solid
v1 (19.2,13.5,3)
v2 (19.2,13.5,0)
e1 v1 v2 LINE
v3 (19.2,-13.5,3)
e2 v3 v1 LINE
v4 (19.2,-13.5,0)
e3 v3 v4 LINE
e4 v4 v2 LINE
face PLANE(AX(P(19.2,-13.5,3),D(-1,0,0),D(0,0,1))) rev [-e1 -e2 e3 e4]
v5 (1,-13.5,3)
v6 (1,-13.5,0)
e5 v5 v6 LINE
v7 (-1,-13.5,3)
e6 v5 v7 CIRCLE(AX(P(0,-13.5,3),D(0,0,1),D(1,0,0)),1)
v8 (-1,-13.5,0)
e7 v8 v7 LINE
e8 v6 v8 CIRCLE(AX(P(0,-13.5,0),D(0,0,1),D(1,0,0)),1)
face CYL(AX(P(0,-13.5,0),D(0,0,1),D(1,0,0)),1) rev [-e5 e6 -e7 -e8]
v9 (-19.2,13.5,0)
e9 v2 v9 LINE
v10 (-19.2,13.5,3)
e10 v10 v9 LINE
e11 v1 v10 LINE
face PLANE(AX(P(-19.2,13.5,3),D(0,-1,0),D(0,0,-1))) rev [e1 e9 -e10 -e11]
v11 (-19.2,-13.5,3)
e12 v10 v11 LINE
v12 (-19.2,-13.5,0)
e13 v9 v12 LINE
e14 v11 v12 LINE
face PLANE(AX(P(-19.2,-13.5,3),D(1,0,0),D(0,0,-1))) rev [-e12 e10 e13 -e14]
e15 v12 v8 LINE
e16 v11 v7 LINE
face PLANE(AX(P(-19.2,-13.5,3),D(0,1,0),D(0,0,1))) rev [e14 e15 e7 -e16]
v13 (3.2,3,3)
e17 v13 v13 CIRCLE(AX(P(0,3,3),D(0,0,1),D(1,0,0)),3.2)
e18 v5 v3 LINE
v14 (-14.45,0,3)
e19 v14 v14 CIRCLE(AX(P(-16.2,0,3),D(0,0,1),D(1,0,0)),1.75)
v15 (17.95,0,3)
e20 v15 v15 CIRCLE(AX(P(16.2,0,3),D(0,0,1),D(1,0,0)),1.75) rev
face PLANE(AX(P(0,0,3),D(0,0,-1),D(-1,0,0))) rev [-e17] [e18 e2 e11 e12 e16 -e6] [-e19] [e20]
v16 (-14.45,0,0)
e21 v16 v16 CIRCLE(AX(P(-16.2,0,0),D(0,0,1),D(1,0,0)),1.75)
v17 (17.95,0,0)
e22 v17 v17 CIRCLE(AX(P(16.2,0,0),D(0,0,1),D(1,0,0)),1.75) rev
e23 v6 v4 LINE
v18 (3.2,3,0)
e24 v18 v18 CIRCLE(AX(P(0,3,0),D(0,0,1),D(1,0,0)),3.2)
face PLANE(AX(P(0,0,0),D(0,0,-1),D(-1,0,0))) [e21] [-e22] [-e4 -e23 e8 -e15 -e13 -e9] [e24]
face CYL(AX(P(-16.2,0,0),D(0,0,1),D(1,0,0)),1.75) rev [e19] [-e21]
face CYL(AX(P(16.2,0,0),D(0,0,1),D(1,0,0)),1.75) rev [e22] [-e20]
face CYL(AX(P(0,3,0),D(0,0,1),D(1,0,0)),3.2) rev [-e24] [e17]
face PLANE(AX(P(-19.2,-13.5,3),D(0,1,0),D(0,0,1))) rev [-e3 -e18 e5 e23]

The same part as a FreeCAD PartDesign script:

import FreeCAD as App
import Part
import Sketcher

V = App.Vector
Q = App.Units.Quantity

doc = App.newDocument("Part")
params = doc.addObject("Spreadsheet::Sheet", "Params")
for row, (alias, value) in enumerate([
    ("sketch1_height", "27 mm"),
    ("sketch1_width", "38.4 mm"),
    ("pad1_length", "3 mm"),
    ("sketch2_diameter", "3.5 mm"),
    ("sketch3_diameter", "6.4 mm"),
    ("sketch4_diameter", "2 mm"),
], start=1):
    params.set(f"A{row}", alias)
    params.set(f"B{row}", "=" + value)
    params.setAlias(f"B{row}", alias)

body = doc.addObject("PartDesign::Body", "Body")

sketch1 = doc.addObject("Sketcher::SketchObject", "Sketch")
body.addObject(sketch1)
sketch1.AttachmentSupport = (doc.XY_Plane, [""])
sketch1.MapMode = "FlatFace"
sketch1.addGeometry(Part.LineSegment(V(-19.2, 13.5, 0), V(-19.2, -13.5, 0)), False)
sketch1.addGeometry(Part.LineSegment(V(-19.2, -13.5, 0), V(19.2, -13.5, 0)), False)
sketch1.addGeometry(Part.LineSegment(V(19.2, -13.5, 0), V(19.2, 13.5, 0)), False)
sketch1.addGeometry(Part.LineSegment(V(19.2, 13.5, 0), V(-19.2, 13.5, 0)), False)
sketch1.addConstraint(Sketcher.Constraint("Coincident", 0, 2, 1, 1))
sketch1.addConstraint(Sketcher.Constraint("Coincident", 1, 2, 2, 1))
sketch1.addConstraint(Sketcher.Constraint("Coincident", 2, 2, 3, 1))
sketch1.addConstraint(Sketcher.Constraint("Coincident", 3, 2, 0, 1))
sketch1.addConstraint(Sketcher.Constraint("Vertical", 0))
sketch1.addConstraint(Sketcher.Constraint("Horizontal", 1))
sketch1.addConstraint(Sketcher.Constraint("Vertical", 2))
sketch1.addConstraint(Sketcher.Constraint("Horizontal", 3))
sketch1.addConstraint(Sketcher.Constraint("Symmetric", 0, 2, 2, 2, -1, 1))
sketch1.addConstraint(Sketcher.Constraint("DistanceY", 0, 2, 0, 1, Q("27 mm")))
sketch1.addConstraint(Sketcher.Constraint("DistanceX", 1, 1, 1, 2, Q("38.4 mm")))
sketch1.setExpression("Constraints[9]", "Params.sketch1_height")
sketch1.setExpression("Constraints[10]", "Params.sketch1_width")
pad1 = doc.addObject("PartDesign::Pad", "Pad")
body.addObject(pad1)
pad1.Profile = sketch1
pad1.setExpression("Length", "Params.pad1_length")

sketch2 = doc.addObject("Sketcher::SketchObject", "Sketch001")
body.addObject(sketch2)
sketch2.AttachmentSupport = (doc.XY_Plane, [""])
sketch2.MapMode = "FlatFace"
sketch2.AttachmentOffset = App.Placement(V(0, 0, 3), App.Rotation())
sketch2.addGeometry(Part.Circle(V(16.2, 0, 0), V(0, 0, 1), 1.75), False)
sketch2.addGeometry(Part.Circle(V(-16.2, 0, 0), V(0, 0, 1), 1.75), False)
sketch2.addConstraint(Sketcher.Constraint("Equal", 0, 1))
sketch2.addConstraint(Sketcher.Constraint("Symmetric", 0, 3, 1, 3, -1, 1))
sketch2.addConstraint(Sketcher.Constraint("PointOnObject", 0, 3, -1))
sketch2.addConstraint(Sketcher.Constraint("Diameter", 0, Q("3.5 mm")))
sketch2.addConstraint(Sketcher.Constraint("DistanceX", -1, 1, 0, 3, Q("16.2 mm")))
sketch2.setExpression("Constraints[3]", "Params.sketch2_diameter")
pocket1 = doc.addObject("PartDesign::Pocket", "Pocket")
body.addObject(pocket1)
pocket1.Profile = sketch2
pocket1.Type = "ThroughAll"

sketch3 = doc.addObject("Sketcher::SketchObject", "Sketch002")
body.addObject(sketch3)
sketch3.AttachmentSupport = (doc.XY_Plane, [""])
sketch3.MapMode = "FlatFace"
sketch3.AttachmentOffset = App.Placement(V(0, 0, 3), App.Rotation())
sketch3.addGeometry(Part.Circle(V(0, 3, 0), V(0, 0, 1), 3.2), False)
sketch3.addConstraint(Sketcher.Constraint("PointOnObject", 0, 3, -2))
sketch3.addConstraint(Sketcher.Constraint("Diameter", 0, Q("6.4 mm")))
sketch3.addConstraint(Sketcher.Constraint("DistanceY", -1, 1, 0, 3, Q("3 mm")))
sketch3.setExpression("Constraints[1]", "Params.sketch3_diameter")
pocket2 = doc.addObject("PartDesign::Pocket", "Pocket001")
body.addObject(pocket2)
pocket2.Profile = sketch3
pocket2.Type = "ThroughAll"

sketch4 = doc.addObject("Sketcher::SketchObject", "Sketch003")
body.addObject(sketch4)
sketch4.AttachmentSupport = (doc.XY_Plane, [""])
sketch4.MapMode = "FlatFace"
sketch4.AttachmentOffset = App.Placement(V(0, 0, 3), App.Rotation())
sketch4.addGeometry(Part.Circle(V(0, -13.5, 0), V(0, 0, 1), 1), False)
sketch4.addConstraint(Sketcher.Constraint("PointOnObject", 0, 3, -2))
sketch4.addConstraint(Sketcher.Constraint("Diameter", 0, Q("2 mm")))
sketch4.addConstraint(Sketcher.Constraint("DistanceY", 0, 3, -1, 1, Q("13.5 mm")))
sketch4.setExpression("Constraints[1]", "Params.sketch4_diameter")
pocket3 = doc.addObject("PartDesign::Pocket", "Pocket002")
body.addObject(pocket3)
pocket3.Profile = sketch4
pocket3.Type = "ThroughAll"

doc.recompute()
